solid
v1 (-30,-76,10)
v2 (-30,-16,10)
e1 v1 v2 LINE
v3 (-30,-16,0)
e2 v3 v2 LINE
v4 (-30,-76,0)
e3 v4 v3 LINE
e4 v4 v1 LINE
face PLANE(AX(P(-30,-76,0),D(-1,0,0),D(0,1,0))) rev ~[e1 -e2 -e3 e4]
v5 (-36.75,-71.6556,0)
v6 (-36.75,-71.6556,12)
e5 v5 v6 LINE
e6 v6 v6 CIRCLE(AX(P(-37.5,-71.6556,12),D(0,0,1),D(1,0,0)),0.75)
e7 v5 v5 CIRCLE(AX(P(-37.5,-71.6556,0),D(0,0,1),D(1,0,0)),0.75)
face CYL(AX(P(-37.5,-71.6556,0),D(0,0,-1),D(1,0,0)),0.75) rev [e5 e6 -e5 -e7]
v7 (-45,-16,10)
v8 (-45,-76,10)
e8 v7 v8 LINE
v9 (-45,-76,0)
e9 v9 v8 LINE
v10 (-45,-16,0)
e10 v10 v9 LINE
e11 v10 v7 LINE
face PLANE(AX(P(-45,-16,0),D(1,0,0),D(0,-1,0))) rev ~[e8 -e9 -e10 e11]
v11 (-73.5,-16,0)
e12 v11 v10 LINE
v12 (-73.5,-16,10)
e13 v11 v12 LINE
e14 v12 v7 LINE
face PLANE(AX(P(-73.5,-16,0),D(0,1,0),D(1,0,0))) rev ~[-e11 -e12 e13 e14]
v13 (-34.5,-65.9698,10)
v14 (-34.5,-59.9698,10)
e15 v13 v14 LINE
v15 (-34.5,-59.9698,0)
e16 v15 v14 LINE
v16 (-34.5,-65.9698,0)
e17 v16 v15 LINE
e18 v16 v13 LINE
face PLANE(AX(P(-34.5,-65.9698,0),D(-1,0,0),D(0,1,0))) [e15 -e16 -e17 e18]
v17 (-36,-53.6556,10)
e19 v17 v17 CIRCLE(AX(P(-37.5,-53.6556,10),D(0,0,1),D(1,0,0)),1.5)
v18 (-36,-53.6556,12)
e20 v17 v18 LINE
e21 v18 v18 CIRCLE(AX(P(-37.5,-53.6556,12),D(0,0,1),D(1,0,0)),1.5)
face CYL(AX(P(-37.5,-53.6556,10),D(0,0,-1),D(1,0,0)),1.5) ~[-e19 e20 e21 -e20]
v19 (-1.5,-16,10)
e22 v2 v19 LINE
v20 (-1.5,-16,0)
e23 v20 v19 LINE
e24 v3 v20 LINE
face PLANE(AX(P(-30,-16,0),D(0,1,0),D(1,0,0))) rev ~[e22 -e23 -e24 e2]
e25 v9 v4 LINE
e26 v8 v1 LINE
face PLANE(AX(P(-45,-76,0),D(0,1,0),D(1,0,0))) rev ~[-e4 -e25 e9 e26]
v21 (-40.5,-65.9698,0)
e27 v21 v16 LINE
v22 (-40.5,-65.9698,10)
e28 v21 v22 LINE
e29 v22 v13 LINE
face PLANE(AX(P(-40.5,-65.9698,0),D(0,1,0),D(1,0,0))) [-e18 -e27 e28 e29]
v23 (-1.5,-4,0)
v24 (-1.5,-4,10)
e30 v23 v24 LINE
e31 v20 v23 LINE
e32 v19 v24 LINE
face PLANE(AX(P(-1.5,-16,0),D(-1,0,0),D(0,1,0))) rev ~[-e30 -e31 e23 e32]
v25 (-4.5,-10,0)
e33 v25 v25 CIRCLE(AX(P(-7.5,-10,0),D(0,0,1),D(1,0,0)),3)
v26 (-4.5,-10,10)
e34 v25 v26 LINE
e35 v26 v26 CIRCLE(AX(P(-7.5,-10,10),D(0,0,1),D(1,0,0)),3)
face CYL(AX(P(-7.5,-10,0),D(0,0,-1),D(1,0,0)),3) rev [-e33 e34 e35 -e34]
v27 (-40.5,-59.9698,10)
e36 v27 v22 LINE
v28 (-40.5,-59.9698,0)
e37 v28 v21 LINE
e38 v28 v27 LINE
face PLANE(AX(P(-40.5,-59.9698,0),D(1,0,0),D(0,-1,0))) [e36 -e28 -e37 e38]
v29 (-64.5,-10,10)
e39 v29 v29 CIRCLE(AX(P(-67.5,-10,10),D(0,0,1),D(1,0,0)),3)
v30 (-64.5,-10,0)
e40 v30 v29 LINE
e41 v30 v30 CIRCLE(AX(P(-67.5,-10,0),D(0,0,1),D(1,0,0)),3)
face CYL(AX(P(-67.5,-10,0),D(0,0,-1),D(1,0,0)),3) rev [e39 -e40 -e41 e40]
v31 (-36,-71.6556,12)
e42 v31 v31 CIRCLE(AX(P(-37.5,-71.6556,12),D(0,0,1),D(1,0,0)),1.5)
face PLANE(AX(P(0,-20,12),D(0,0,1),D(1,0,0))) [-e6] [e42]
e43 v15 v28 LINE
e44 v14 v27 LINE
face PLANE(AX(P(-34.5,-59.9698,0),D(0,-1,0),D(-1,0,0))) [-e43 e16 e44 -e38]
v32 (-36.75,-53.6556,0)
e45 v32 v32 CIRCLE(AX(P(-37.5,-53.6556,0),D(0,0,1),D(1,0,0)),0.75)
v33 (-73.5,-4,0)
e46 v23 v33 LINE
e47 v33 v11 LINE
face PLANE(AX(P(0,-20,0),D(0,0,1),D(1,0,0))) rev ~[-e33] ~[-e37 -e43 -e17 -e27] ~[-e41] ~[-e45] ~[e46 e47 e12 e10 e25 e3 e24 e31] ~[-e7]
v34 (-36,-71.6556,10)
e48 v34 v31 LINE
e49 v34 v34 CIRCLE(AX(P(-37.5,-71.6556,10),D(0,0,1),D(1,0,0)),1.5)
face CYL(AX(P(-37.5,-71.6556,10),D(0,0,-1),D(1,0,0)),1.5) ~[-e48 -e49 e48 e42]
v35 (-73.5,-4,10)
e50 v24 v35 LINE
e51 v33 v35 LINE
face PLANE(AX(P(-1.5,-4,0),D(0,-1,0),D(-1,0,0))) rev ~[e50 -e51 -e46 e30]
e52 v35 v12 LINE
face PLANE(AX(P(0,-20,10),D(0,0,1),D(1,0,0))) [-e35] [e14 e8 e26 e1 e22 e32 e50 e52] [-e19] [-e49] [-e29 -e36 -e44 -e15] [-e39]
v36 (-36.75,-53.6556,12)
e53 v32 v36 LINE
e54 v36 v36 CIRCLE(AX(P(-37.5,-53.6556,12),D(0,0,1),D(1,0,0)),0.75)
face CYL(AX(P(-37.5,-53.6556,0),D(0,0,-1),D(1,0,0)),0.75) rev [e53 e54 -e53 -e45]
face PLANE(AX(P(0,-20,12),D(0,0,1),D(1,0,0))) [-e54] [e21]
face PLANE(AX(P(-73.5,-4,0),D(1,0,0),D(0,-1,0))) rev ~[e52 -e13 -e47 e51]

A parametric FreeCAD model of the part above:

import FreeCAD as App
import Part
import Sketcher
from FreeCAD import Vector
Q = App.Units.Quantity

doc = App.newDocument("Part")
params = doc.addObject("Spreadsheet::Sheet", "Params")
for row, (alias, value) in enumerate([
    ("sketch1_diameter", "6 mm"),
    ("sketch1_diameter2", "1.5 mm"),
    ("sketch1_width", "15 mm"),
    ("sketch1_width2", "6 mm"),
    ("sketch1_height", "60 mm"),
    ("pad1_length", "10 mm"),
    ("sketch2_diameter", "3 mm"),
    ("sketch2_diameter2", "1.5 mm"),
    ("pad2_length", "2 mm"),
], start=1):
    params.set(f"A{row}", alias)
    params.set(f"B{row}", "=" + value)
    params.setAlias(f"B{row}", alias)

body = doc.addObject("PartDesign::Body", "Body")

sketch1 = body.newObject("Sketcher::SketchObject", "Sketch")
sketch1.AttachmentSupport = (doc.getObject("XY_Plane"), [""])
sketch1.MapMode = "FlatFace"
sketch1.addGeometry([
    Part.LineSegment(Vector(-1.5, -16, 0), Vector(-1.5, -4, 0)),
    Part.LineSegment(Vector(-1.5, -4, 0), Vector(-73.5, -4, 0)),
    Part.LineSegment(Vector(-73.5, -4, 0), Vector(-73.5, -16, 0)),
    Part.LineSegment(Vector(-73.5, -16, 0), Vector(-45, -16, 0)),
    Part.LineSegment(Vector(-45, -16, 0), Vector(-45, -76, 0)),
    Part.LineSegment(Vector(-45, -76, 0), Vector(-30, -76, 0)),
    Part.LineSegment(Vector(-30, -76, 0), Vector(-30, -16, 0)),
    Part.LineSegment(Vector(-30, -16, 0), Vector(-1.5, -16, 0)),
    Part.LineSegment(Vector(-40.5, -60, 0), Vector(-34.5, -60, 0)),
    Part.LineSegment(Vector(-34.5, -60, 0), Vector(-34.5, -66, 0)),
    Part.LineSegment(Vector(-34.5, -66, 0), Vector(-40.5, -66, 0)),
    Part.LineSegment(Vector(-40.5, -66, 0), Vector(-40.5, -60, 0)),
    Part.Circle(Vector(-67.5, -10, 0), Vector(0, 0, 1), 3),
    Part.Circle(Vector(-7.5, -10, 0), Vector(0, 0, 1), 3),
    Part.Circle(Vector(-37.5, -71.7, 0), Vector(0, 0, 1), 0.8),
    Part.Circle(Vector(-37.5, -53.7, 0), Vector(0, 0, 1), 0.8),
], False)
sketch1.addConstraint([
    Sketcher.Constraint("Coincident", 0, 2, 1, 1),
    Sketcher.Constraint("Coincident", 1, 2, 2, 1),
    Sketcher.Constraint("Coincident", 2, 2, 3, 1),
    Sketcher.Constraint("Coincident", 3, 2, 4, 1),
    Sketcher.Constraint("Coincident", 4, 2, 5, 1),
    Sketcher.Constraint("Coincident", 5, 2, 6, 1),
    Sketcher.Constraint("Coincident", 6, 2, 7, 1),
    Sketcher.Constraint("Coincident", 7, 2, 0, 1),
    Sketcher.Constraint("Coincident", 8, 2, 9, 1),
    Sketcher.Constraint("Coincident", 9, 2, 10, 1),
    Sketcher.Constraint("Coincident", 10, 2, 11, 1),
    Sketcher.Constraint("Coincident", 11, 2, 8, 1),
    Sketcher.Constraint("Vertical", 0),
    Sketcher.Constraint("Horizontal", 1),
    Sketcher.Constraint("Vertical", 2),
    Sketcher.Constraint("Horizontal", 3),
    Sketcher.Constraint("Vertical", 4),
    Sketcher.Constraint("Horizontal", 5),
    Sketcher.Constraint("Vertical", 6),
    Sketcher.Constraint("Horizontal", 7),
    Sketcher.Constraint("Horizontal", 8),
    Sketcher.Constraint("Vertical", 9),
    Sketcher.Constraint("Horizontal", 10),
    Sketcher.Constraint("Vertical", 11),
    Sketcher.Constraint("Equal", 12, 13),
    Sketcher.Constraint("Equal", 14, 15),
    Sketcher.Constraint("Horizontal", 12, 3, 13, 3),
    Sketcher.Constraint("Horizontal", 3, 2, 6, 2),
    Sketcher.Constraint("Vertical", 14, 3, 15, 3),
    Sketcher.Constraint("Equal", 3, 7),
    Sketcher.Constraint("Equal", 10, 9),
    Sketcher.Constraint("Diameter", 12, Q("6 mm")),
    Sketcher.Constraint("Diameter", 14, Q("1.5 mm")),
    Sketcher.Constraint("DistanceX", 5, 1, 5, 2, Q("15 mm")),
    Sketcher.Constraint("DistanceX", 8, 1, 8, 2, Q("6 mm")),
    Sketcher.Constraint("DistanceY", 4, 2, 4, 1, Q("60 mm")),
    Sketcher.Constraint("DistanceX", 5, 2, -1, 1, Q("30 mm")),
    Sketcher.Constraint("DistanceX", 12, 3, 13, 3, Q("60 mm")),
    Sketcher.Constraint("DistanceX", 12, 3, 14, 3, Q("30 mm")),
    Sketcher.Constraint("DistanceY", 14, 3, 15, 3, Q("18 mm")),
    Sketcher.Constraint("DistanceX", 13, 3, 0, 2, Q("6 mm")),
    Sketcher.Constraint("DistanceY", 13, 3, 0, 2, Q("6 mm")),
    Sketcher.Constraint("DistanceX", 1, 2, 12, 3, Q("6 mm")),
    Sketcher.Constraint("DistanceY", 2, 2, 12, 3, Q("6 mm")),
    Sketcher.Constraint("DistanceX", 15, 3, 8, 2, Q("3 mm")),
    Sketcher.Constraint("DistanceY", 12, 3, -1, 1, Q("10 mm")),
    Sketcher.Constraint("DistanceY", 4, 2, 14, 3, Q("4.3444 mm")),
    Sketcher.Constraint("DistanceY", 8, 2, -1, 1, Q("59.9698 mm")),
])
sketch1.setExpression("Constraints[31]", "Params.sketch1_diameter")
sketch1.setExpression("Constraints[32]", "Params.sketch1_diameter2")
sketch1.setExpression("Constraints[33]", "Params.sketch1_width")
sketch1.setExpression("Constraints[34]", "Params.sketch1_width2")
sketch1.setExpression("Constraints[35]", "Params.sketch1_height")
pad1 = body.newObject("PartDesign::Pad", "Pad")
pad1.Profile = sketch1
pad1.setExpression("Length", "Params.pad1_length")

sketch2 = body.newObject("Sketcher::SketchObject", "Sketch001")
sketch2.AttachmentSupport = (doc.getObject("XY_Plane"), [""])
sketch2.MapMode = "FlatFace"
sketch2.AttachmentOffset = App.Placement(Vector(0, 0, 10), App.Rotation())
sketch2.addGeometry([
    Part.Circle(Vector(-37.5, -53.7, 0), Vector(0, 0, 1), 1.5),
    Part.Circle(Vector(-37.5, -53.7, 0), Vector(0, 0, 1), 0.8),
    Part.Circle(Vector(-37.5, -71.7, 0), Vector(0, 0, 1), 1.5),
    Part.Circle(Vector(-37.5, -71.7, 0), Vector(0, 0, 1), 0.8),
], False)
sketch2.addConstraint([
    Sketcher.Constraint("Coincident", 1, 3, 0, 3),
    Sketcher.Constraint("Coincident", 3, 3, 2, 3),
    Sketcher.Constraint("Equal", 0, 2),
    Sketcher.Constraint("Equal", 1, 3),
    Sketcher.Constraint("Vertical", 1, 3, 2, 3),
    Sketcher.Constraint("Diameter", 0, Q("3 mm")),
    Sketcher.Constraint("Diameter", 1, Q("1.5 mm")),
    Sketcher.Constraint("DistanceY", 2, 3, 0, 3, Q("18 mm")),
    Sketcher.Constraint("DistanceX", 0, 3, -1, 1, Q("37.5 mm")),
    Sketcher.Constraint("DistanceY", 0, 3, -1, 1, Q("53.6556 mm")),
])
sketch2.setExpression("Constraints[5]", "Params.sketch2_diameter")
sketch2.setExpression("Constraints[6]", "Params.sketch2_diameter2")
pad2 = body.newObject("PartDesign::Pad", "Pad001")
pad2.Profile = sketch2
pad2.setExpression("Length", "Params.pad2_length")

doc.recompute()
